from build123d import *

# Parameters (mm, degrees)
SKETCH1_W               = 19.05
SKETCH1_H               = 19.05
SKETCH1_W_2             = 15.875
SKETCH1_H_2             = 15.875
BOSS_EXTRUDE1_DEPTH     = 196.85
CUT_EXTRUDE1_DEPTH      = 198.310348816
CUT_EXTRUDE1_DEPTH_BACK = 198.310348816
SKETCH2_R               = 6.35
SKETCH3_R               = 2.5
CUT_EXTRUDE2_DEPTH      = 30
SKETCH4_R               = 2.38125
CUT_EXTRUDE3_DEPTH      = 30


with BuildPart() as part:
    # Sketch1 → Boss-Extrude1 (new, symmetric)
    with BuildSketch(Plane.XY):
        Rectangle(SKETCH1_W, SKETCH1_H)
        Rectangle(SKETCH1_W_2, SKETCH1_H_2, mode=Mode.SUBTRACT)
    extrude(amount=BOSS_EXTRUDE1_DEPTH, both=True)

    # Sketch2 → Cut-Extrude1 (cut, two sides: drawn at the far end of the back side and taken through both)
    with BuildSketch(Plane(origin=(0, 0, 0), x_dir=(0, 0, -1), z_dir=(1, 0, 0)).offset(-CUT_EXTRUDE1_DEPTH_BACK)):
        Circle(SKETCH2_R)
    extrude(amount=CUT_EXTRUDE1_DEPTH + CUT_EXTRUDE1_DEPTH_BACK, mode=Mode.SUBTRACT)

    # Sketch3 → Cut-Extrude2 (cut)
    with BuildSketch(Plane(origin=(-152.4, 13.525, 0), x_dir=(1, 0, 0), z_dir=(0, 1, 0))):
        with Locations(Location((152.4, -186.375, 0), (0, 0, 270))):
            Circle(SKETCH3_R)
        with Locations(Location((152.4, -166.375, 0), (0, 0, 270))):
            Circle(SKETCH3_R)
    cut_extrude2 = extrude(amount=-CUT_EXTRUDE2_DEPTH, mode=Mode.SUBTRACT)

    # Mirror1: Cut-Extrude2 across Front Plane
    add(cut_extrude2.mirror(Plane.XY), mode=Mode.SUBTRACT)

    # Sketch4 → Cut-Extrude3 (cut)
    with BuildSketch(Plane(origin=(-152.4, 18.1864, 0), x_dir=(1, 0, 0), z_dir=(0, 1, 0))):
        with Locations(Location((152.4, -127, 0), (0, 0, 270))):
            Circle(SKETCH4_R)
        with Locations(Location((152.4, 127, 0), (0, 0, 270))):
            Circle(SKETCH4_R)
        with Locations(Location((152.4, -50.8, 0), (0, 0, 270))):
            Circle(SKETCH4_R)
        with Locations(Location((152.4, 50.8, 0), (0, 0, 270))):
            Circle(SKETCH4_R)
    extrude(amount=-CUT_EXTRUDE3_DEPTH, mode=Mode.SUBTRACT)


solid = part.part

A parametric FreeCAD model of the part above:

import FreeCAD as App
import Part
import Sketcher

V = App.Vector
Q = App.Units.Quantity


def add_polygon(sketch, points):
    """Adds a closed chain of lines whose ends are joined by coincident constraints."""
    first, n = sketch.GeometryCount, len(points)
    for a, b in zip(points, points[1:] + points[:1]):
        sketch.addGeometry(Part.LineSegment(App.Vector(*a, 0), App.Vector(*b, 0)), False)
    for i in range(n):
        sketch.addConstraint(Sketcher.Constraint("Coincident", first + i, 2, first + (i + 1) % n, 1))

doc = App.newDocument("Part")
body = doc.addObject("PartDesign::Body", "Body")

# Sketch on XY plane
sketch1 = body.newObject("Sketcher::SketchObject", "Sketch")
sketch1.AttachmentSupport = (doc.getObject("XY_Plane"), [""])
sketch1.MapMode = "FlatFace"
add_polygon(sketch1, [(-9.525, 9.525), (-9.525, -9.525), (9.525, -9.525), (9.525, 9.525)])  # lines 0-3
add_polygon(sketch1, [(7.9375, -7.9375), (-7.9375, -7.9375), (-7.9375, 7.9375), (7.9375, 7.9375)])  # lines 4-7
sketch1.addConstraint([
    Sketcher.Constraint("Vertical", 0),
    Sketcher.Constraint("Horizontal", 1),
    Sketcher.Constraint("Vertical", 2),
    Sketcher.Constraint("Horizontal", 3),
    Sketcher.Constraint("Horizontal", 4),
    Sketcher.Constraint("Vertical", 5),
    Sketcher.Constraint("Horizontal", 6),
    Sketcher.Constraint("Vertical", 7),
    Sketcher.Constraint("Symmetric", 0, 2, 2, 2, -1, 1),
    Sketcher.Constraint("Symmetric", 4, 2, 6, 2, -1, 1),
    Sketcher.Constraint("Equal", 3, 0),
    Sketcher.Constraint("Equal", 6, 5),
    Sketcher.Constraint("DistanceX", 1, 1, 1, 2, Q("0.75 in")),
    Sketcher.Constraint("DistanceX", 4, 2, 4, 1, Q("0.625 in")),
])
pad1 = body.newObject("PartDesign::Pad", "Pad")
pad1.Profile = sketch1
pad1.Length = Q("15.5 in")
pad1.Midplane = True

# Sketch on YZ plane
sketch2 = body.newObject("Sketcher::SketchObject", "Sketch001")
sketch2.AttachmentSupport = (doc.getObject("YZ_Plane"), [""])
sketch2.MapMode = "FlatFace"
sketch2.addGeometry(Part.Circle(V(0, 0, 0), V(0, 0, 1), 6.35), False)
sketch2.addConstraint([
    Sketcher.Constraint("Coincident", 0, 3, -1, 1),
    Sketcher.Constraint("Diameter", 0, Q("0.5 in")),
])
pocket1 = body.newObject("PartDesign::Pocket", "Pocket")
pocket1.Profile = sketch2
pocket1.Type = "ThroughAll"
pocket1.Midplane = True

# Sketch on XZ plane
sketch3 = body.newObject("Sketcher::SketchObject", "Sketch002")
sketch3.AttachmentSupport = (doc.getObject("XZ_Plane"), [""])
sketch3.MapMode = "FlatFace"
sketch3.AttachmentOffset = App.Placement(V(0, 0, -13.525), App.Rotation())
sketch3.addGeometry([
    Part.Circle(V(0, 186.375, 0), V(0, 0, 1), 2.5),
    Part.Circle(V(0, 166.375, 0), V(0, 0, 1), 2.5),
], False)
sketch3.addConstraint([
    Sketcher.Constraint("Equal", 0, 1),
    Sketcher.Constraint("PointOnObject", 0, 3, -2),
    Sketcher.Constraint("PointOnObject", 1, 3, -2),
    Sketcher.Constraint("Diameter", 0, Q("5 mm")),
    Sketcher.Constraint("DistanceY", -1, 1, 0, 3, Q("186.375 mm")),
    Sketcher.Constraint("DistanceY", -1, 1, 1, 3, Q("166.375 mm")),
])
pocket2 = body.newObject("PartDesign::Pocket", "Pocket001")
pocket2.Profile = sketch3
pocket2.Length = 30
pocket2.Reversed = True
doc.recompute()

mirrored = body.newObject("PartDesign::Mirrored", "Mirrored")
mirrored.Originals = [pocket2]
mirrored.MirrorPlane = (doc.getObject("XY_Plane"), [""])
body.Tip = mirrored

# Sketch on XZ plane
sketch4 = body.newObject("Sketcher::SketchObject", "Sketch003")
sketch4.AttachmentSupport = (doc.getObject("XZ_Plane"), [""])
sketch4.MapMode = "FlatFace"
sketch4.AttachmentOffset = App.Placement(V(0, 0, -0.716 * 25.4), App.Rotation())
sketch4.addGeometry([
    Part.Circle(V(0, 127, 0), V(0, 0, 1), 2.38125),
    Part.Circle(V(0, -127, 0), V(0, 0, 1), 2.38125),
    Part.Circle(V(0, 50.8, 0), V(0, 0, 1), 2.38125),
    Part.Circle(V(0, -50.8, 0), V(0, 0, 1), 2.38125),
], False)
sketch4.addConstraint([
    Sketcher.Constraint("Equal", 0, 1),
    Sketcher.Constraint("Equal", 1, 2),
    Sketcher.Constraint("Equal", 2, 3),
    Sketcher.Constraint("Symmetric", 0, 3, 1, 3, -1, 1),
    Sketcher.Constraint("Symmetric", 2, 3, 3, 3, -1, 1),
    Sketcher.Constraint("PointOnObject", 0, 3, -2),
    Sketcher.Constraint("PointOnObject", 2, 3, -2),
    Sketcher.Constraint("Diameter", 0, Q("0.1875 in")),
    Sketcher.Constraint("DistanceY", -1, 1, 0, 3, Q("5 in")),
    Sketcher.Constraint("DistanceY", -1, 1, 2, 3, Q("2 in")),
])
pocket3 = body.newObject("PartDesign::Pocket", "Pocket002")
pocket3.Profile = sketch4
pocket3.Length = 30
pocket3.Reversed = True

doc.recompute()
